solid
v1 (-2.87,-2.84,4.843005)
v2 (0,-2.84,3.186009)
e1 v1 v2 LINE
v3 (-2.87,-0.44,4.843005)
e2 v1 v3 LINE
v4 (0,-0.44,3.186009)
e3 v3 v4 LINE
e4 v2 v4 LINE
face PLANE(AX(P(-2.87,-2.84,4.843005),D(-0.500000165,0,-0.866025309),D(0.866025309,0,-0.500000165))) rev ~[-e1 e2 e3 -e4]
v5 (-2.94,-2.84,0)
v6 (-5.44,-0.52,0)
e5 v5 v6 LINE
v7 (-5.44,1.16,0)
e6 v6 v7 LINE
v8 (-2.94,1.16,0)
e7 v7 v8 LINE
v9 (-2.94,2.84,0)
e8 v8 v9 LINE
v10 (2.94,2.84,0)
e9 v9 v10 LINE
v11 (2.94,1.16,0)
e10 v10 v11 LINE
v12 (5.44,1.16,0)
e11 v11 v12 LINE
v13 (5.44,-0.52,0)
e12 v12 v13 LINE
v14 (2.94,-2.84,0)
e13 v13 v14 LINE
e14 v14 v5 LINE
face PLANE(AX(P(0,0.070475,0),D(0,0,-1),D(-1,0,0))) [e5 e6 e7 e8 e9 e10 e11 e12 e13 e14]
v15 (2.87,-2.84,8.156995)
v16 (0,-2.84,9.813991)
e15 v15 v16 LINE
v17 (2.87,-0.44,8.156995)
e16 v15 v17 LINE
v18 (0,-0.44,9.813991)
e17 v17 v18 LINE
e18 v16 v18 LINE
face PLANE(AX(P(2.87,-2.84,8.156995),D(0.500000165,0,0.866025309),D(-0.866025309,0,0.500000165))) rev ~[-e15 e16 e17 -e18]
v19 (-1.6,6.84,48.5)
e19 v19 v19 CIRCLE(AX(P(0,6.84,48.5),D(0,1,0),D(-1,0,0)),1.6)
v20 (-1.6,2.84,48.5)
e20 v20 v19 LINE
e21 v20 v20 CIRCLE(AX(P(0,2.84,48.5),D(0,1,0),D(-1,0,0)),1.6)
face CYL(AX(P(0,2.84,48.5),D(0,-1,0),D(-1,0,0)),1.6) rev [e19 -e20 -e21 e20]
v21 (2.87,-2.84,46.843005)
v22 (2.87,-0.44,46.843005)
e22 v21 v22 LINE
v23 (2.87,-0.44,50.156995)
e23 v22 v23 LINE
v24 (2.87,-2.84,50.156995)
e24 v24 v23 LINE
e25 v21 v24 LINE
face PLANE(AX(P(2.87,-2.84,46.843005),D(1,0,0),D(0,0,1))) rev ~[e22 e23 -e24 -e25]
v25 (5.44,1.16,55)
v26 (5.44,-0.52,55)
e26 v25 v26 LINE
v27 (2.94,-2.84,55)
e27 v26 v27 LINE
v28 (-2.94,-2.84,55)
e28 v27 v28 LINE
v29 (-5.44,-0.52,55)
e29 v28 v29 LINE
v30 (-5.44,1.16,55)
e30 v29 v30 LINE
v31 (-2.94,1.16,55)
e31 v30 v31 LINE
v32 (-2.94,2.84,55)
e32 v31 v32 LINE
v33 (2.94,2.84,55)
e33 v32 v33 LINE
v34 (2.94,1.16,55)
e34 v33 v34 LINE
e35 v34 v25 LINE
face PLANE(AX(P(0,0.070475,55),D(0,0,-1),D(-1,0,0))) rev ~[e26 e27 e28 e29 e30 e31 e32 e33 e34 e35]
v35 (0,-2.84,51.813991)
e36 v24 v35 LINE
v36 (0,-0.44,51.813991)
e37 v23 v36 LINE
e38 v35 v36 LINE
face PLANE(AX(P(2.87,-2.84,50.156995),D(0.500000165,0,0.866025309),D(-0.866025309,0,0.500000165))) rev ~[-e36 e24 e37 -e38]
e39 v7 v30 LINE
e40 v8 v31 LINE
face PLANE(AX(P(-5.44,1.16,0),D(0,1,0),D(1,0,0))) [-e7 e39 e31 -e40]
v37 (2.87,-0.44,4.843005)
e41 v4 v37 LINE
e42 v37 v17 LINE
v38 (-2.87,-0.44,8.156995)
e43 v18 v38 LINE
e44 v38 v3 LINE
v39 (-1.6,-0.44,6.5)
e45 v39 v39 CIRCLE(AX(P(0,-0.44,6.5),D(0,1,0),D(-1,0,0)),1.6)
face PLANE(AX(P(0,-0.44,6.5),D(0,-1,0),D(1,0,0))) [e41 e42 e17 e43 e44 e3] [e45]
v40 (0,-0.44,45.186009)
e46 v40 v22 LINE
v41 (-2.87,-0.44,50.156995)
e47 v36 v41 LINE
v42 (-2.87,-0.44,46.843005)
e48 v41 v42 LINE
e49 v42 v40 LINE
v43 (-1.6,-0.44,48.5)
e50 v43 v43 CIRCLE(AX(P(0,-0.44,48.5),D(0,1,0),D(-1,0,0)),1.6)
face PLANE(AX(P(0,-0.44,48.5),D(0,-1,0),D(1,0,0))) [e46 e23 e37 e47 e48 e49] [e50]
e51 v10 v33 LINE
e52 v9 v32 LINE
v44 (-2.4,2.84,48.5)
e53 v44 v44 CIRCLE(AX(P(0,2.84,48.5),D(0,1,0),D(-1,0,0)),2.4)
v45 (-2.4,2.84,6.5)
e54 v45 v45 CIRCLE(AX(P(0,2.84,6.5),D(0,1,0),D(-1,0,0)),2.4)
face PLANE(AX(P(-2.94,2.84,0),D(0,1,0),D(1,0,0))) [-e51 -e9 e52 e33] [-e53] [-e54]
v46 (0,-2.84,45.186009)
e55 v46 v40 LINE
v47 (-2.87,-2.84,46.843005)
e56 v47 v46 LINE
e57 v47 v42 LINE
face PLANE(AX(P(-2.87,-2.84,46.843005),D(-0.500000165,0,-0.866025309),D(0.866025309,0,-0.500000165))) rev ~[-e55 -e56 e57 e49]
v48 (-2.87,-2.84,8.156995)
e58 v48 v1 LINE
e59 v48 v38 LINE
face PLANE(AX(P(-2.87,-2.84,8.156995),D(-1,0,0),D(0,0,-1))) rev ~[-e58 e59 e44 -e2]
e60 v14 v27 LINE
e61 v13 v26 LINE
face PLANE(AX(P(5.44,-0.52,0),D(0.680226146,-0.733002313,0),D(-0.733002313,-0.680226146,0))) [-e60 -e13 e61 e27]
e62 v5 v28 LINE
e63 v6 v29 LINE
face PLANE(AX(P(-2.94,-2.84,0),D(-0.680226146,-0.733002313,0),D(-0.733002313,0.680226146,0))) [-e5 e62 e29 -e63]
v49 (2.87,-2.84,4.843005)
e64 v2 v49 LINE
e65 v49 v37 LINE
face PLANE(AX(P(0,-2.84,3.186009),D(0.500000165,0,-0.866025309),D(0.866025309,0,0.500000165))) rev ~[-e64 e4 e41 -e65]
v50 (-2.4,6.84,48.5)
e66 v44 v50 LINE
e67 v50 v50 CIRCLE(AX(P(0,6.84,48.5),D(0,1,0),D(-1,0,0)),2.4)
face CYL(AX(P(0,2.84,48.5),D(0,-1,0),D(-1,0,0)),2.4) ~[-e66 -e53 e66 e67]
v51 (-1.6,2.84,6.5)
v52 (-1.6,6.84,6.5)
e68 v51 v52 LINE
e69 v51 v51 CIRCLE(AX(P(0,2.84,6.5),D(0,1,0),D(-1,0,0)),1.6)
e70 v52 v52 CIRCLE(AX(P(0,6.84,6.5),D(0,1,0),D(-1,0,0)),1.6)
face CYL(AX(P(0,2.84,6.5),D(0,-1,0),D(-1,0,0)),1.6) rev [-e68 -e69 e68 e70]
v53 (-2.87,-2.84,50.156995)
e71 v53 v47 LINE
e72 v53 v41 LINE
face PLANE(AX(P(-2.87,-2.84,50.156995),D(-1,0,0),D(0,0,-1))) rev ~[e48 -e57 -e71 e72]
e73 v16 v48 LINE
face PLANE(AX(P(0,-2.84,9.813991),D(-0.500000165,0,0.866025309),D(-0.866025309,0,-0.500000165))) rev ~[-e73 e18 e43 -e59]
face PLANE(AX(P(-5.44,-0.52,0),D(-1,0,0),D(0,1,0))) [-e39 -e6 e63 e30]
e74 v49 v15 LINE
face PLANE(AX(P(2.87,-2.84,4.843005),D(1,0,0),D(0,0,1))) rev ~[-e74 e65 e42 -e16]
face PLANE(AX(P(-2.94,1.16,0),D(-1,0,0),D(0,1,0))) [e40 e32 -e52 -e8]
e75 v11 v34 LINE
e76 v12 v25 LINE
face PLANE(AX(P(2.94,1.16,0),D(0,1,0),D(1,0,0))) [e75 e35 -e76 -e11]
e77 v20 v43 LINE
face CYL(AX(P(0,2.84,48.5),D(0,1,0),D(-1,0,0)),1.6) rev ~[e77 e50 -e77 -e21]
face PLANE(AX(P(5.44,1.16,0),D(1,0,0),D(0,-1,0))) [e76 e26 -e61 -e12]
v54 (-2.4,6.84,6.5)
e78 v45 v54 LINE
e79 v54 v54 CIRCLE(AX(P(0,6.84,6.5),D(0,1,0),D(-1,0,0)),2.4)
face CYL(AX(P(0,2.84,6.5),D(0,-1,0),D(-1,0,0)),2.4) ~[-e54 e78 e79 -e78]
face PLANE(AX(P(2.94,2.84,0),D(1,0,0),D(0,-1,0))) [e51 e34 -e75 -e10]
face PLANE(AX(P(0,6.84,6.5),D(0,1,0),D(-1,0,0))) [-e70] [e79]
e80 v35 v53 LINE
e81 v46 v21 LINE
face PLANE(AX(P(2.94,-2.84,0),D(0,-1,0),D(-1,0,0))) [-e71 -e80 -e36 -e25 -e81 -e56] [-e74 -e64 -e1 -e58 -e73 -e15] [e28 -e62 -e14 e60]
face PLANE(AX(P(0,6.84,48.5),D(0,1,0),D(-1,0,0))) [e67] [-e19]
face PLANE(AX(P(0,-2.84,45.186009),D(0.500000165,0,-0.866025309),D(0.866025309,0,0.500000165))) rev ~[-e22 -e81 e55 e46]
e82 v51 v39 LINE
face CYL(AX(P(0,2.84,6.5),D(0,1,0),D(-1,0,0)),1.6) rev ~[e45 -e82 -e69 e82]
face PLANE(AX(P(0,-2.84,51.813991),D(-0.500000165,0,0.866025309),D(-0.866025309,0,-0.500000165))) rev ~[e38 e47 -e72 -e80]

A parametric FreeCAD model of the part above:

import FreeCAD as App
import Part
import Sketcher
from FreeCAD import Vector
Q = App.Units.Quantity


def add_polygon(sketch, points):
    """Adds a closed chain of lines whose ends are joined by coincident constraints."""
    first, n = sketch.GeometryCount, len(points)
    for a, b in zip(points, points[1:] + points[:1]):
        sketch.addGeometry(Part.LineSegment(App.Vector(*a, 0), App.Vector(*b, 0)), False)
    for i in range(n):
        sketch.addConstraint(Sketcher.Constraint("Coincident", first + i, 2, first + (i + 1) % n, 1))

doc = App.newDocument("Part")
body = doc.addObject("PartDesign::Body", "Body")

sketch1 = doc.addObject("Sketcher::SketchObject", "Sketch")
body.addObject(sketch1)
sketch1.AttachmentSupport = (doc.XY_Plane, [""])
sketch1.MapMode = "FlatFace"
add_polygon(sketch1, [(-2.9, -2.8), (2.9, -2.8), (5.4, -0.5), (5.4, 1.2), (2.9, 1.2), (2.9, 2.8), (-2.9, 2.8), (-2.9, 1.2), (-5.4, 1.2), (-5.4, -0.5)])
sketch1.addConstraint(Sketcher.Constraint("Horizontal", 0))
sketch1.addConstraint(Sketcher.Constraint("Vertical", 2))
sketch1.addConstraint(Sketcher.Constraint("Horizontal", 3))
sketch1.addConstraint(Sketcher.Constraint("Vertical", 4))
sketch1.addConstraint(Sketcher.Constraint("Horizontal", 5))
sketch1.addConstraint(Sketcher.Constraint("Vertical", 6))
sketch1.addConstraint(Sketcher.Constraint("Horizontal", 7))
sketch1.addConstraint(Sketcher.Constraint("Vertical", 8))
sketch1.addConstraint(Sketcher.Constraint("Symmetric", 0, 2, 5, 2, -1, 1))
sketch1.addConstraint(Sketcher.Constraint("Symmetric", 3, 2, 6, 2, -2))
sketch1.addConstraint(Sketcher.Constraint("Symmetric", 1, 2, 8, 2, -2))
sketch1.addConstraint(Sketcher.Constraint("Vertical", 6, 2, 9, 2))
sketch1.addConstraint(Sketcher.Constraint("Equal", 2, 4))
sketch1.addConstraint(Sketcher.Constraint("DistanceX", 3, 2, 3, 1, Q("2.5 mm")))
sketch1.addConstraint(Sketcher.Constraint("DistanceY", 0, 2, 2, 2, Q("4 mm")))
sketch1.addConstraint(Sketcher.Constraint("DistanceX", 0, 1, 0, 2, Q("5.88 mm")))
sketch1.addConstraint(Sketcher.Constraint("DistanceY", 2, 1, 2, 2, Q("1.68 mm")))
pad1 = doc.addObject("PartDesign::Pad", "Pad")
body.addObject(pad1)
pad1.Profile = sketch1
pad1.Length = 55

sketch2 = doc.addObject("Sketcher::SketchObject", "Sketch001")
body.addObject(sketch2)
sketch2.AttachmentSupport = (doc.XZ_Plane, [""])
sketch2.MapMode = "FlatFace"
sketch2.AttachmentOffset = App.Placement(Vector(0, 0, -2.84), App.Rotation())
sketch2.addGeometry(Part.Circle(Vector(0, 48.5, 0), Vector(0, 0, 1), 1.6), False)
sketch2.addGeometry(Part.Circle(Vector(0, 6.5, 0), Vector(0, 0, 1), 1.6), False)
sketch2.addConstraint(Sketcher.Constraint("Equal", 0, 1))
sketch2.addConstraint(Sketcher.Constraint("PointOnObject", 0, 3, -2))
sketch2.addConstraint(Sketcher.Constraint("PointOnObject", 1, 3, -2))
sketch2.addConstraint(Sketcher.Constraint("Diameter", 0, Q("3.2 mm")))
sketch2.addConstraint(Sketcher.Constraint("DistanceY", 1, 3, 0, 3, Q("42 mm")))
sketch2.addConstraint(Sketcher.Constraint("DistanceY", -1, 1, 0, 3, Q("48.5 mm")))
pocket1 = doc.addObject("PartDesign::Pocket", "Pocket")
body.addObject(pocket1)
pocket1.Profile = sketch2
pocket1.Length = 5.68
pocket1.Reversed = True

sketch3 = doc.addObject("Sketcher::SketchObject", "Sketch002")
body.addObject(sketch3)
sketch3.AttachmentSupport = (doc.XZ_Plane, [""])
sketch3.MapMode = "FlatFace"
sketch3.AttachmentOffset = App.Placement(Vector(0, 0, 2.84), App.Rotation())
add_polygon(sketch3, [(0, 45.2), (2.9, 46.8), (2.9, 50.2), (0, 51.8), (-2.9, 50.2), (-2.9, 46.8)])
add_polygon(sketch3, [(0, 3.2), (2.9, 4.8), (2.9, 8.2), (0, 9.8), (-2.9, 8.2), (-2.9, 4.8)])
sketch3.addConstraint(Sketcher.Constraint("Vertical", 1))
sketch3.addConstraint(Sketcher.Constraint("Vertical", 4))
sketch3.addConstraint(Sketcher.Constraint("Vertical", 7))
sketch3.addConstraint(Sketcher.Constraint("Vertical", 10))
sketch3.addConstraint(Sketcher.Constraint("Symmetric", 1, 2, 3, 2, -2))
sketch3.addConstraint(Sketcher.Constraint("Symmetric", 7, 2, 9, 2, -2))
sketch3.addConstraint(Sketcher.Constraint("PointOnObject", 2, 2, -2))
sketch3.addConstraint(Sketcher.Constraint("PointOnObject", 5, 2, -2))
sketch3.addConstraint(Sketcher.Constraint("PointOnObject", 8, 2, -2))
sketch3.addConstraint(Sketcher.Constraint("PointOnObject", 11, 2, -2))
sketch3.addConstraint(Sketcher.Constraint("Parallel", 0, 3))
sketch3.addConstraint(Sketcher.Constraint("Parallel", 2, 5))
sketch3.addConstraint(Sketcher.Constraint("Parallel", 3, 6))
sketch3.addConstraint(Sketcher.Constraint("Parallel", 5, 8))
sketch3.addConstraint(Sketcher.Constraint("Parallel", 8, 11))
sketch3.addConstraint(Sketcher.Constraint("Vertical", 1, 2, 6, 2))
sketch3.addConstraint(Sketcher.Constraint("Equal", 4, 7))
sketch3.addConstraint(Sketcher.Constraint("Angle", 0, Q("30.000011 deg")))
sketch3.addConstraint(Sketcher.Constraint("DistanceY", 6, 2, 0, 2, Q("42 mm")))
sketch3.addConstraint(Sketcher.Constraint("DistanceX", -1, 1, 0, 2, Q("2.87 mm")))
sketch3.addConstraint(Sketcher.Constraint("DistanceY", 1, 1, 1, 2, Q("3.31399 mm")))
sketch3.addConstraint(Sketcher.Constraint("DistanceY", -1, 1, 2, 2, Q("51.813991 mm")))
pocket2 = doc.addObject("PartDesign::Pocket", "Pocket001")
body.addObject(pocket2)
pocket2.Profile = sketch3
pocket2.Length = 2.4

sketch4 = doc.addObject("Sketcher::SketchObject", "Sketch003")
body.addObject(sketch4)
sketch4.AttachmentSupport = (doc.XZ_Plane, [""])
sketch4.MapMode = "FlatFace"
sketch4.AttachmentOffset = App.Placement(Vector(0, 0, -2.84), App.Rotation())
sketch4.addGeometry(Part.Circle(Vector(0, 6.5, 0), Vector(0, 0, 1), 2.4), False)
sketch4.addGeometry(Part.Circle(Vector(0, 6.5, 0), Vector(0, 0, 1), 1.6), False)
sketch4.addGeometry(Part.Circle(Vector(0, 48.5, 0), Vector(0, 0, 1), 2.4), False)
sketch4.addGeometry(Part.Circle(Vector(0, 48.5, 0), Vector(0, 0, 1), 1.6), False)
sketch4.addConstraint(Sketcher.Constraint("Coincident", 1, 3, 0, 3))
sketch4.addConstraint(Sketcher.Constraint("Coincident", 3, 3, 2, 3))
sketch4.addConstraint(Sketcher.Constraint("Equal", 0, 2))
sketch4.addConstraint(Sketcher.Constraint("Equal", 1, 3))
sketch4.addConstraint(Sketcher.Constraint("PointOnObject", 0, 3, -2))
sketch4.addConstraint(Sketcher.Constraint("PointOnObject", 2, 3, -2))
sketch4.addConstraint(Sketcher.Constraint("Diameter", 0, Q("4.8 mm")))
sketch4.addConstraint(Sketcher.Constraint("Diameter", 1, Q("3.2 mm")))
sketch4.addConstraint(Sketcher.Constraint("DistanceY", 0, 3, 2, 3, Q("42 mm")))
sketch4.addConstraint(Sketcher.Constraint("DistanceY", -1, 1, 0, 3, Q("6.5 mm")))
pad2 = doc.addObject("PartDesign::Pad", "Pad001")
body.addObject(pad2)
pad2.Profile = sketch4
pad2.Length = 4
pad2.Reversed = True

doc.recompute()
